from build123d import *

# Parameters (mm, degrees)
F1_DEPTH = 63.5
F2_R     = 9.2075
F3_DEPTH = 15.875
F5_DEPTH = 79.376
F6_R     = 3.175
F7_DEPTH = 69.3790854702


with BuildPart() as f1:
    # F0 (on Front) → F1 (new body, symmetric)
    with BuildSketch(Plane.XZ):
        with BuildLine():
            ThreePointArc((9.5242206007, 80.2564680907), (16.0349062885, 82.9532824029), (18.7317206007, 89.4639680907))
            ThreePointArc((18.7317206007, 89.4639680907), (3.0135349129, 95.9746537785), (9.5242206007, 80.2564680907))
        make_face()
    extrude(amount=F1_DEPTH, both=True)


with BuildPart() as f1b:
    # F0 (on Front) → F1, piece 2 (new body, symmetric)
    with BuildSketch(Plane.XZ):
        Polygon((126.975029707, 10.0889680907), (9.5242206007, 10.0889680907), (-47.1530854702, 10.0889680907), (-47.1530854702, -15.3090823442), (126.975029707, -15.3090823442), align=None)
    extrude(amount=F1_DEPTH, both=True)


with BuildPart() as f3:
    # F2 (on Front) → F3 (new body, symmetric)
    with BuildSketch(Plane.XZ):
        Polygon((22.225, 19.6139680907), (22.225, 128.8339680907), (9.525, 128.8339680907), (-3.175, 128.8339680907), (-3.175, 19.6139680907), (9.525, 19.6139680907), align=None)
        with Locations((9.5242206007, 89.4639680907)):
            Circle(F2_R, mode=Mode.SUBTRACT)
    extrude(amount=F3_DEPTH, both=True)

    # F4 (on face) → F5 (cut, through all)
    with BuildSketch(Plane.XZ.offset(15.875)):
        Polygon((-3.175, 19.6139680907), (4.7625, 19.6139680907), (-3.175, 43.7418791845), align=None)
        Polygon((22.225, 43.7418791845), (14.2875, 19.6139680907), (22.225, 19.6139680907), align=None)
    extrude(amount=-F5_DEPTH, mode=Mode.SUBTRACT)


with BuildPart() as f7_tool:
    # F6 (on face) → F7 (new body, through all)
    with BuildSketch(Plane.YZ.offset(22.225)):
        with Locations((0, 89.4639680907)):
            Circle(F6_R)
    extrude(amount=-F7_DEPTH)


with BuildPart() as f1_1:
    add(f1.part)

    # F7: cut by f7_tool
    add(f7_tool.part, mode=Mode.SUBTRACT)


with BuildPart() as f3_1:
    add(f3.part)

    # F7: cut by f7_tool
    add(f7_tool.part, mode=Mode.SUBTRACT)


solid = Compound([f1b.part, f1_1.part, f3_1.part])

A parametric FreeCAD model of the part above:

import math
import FreeCAD as App
import Part
import Sketcher
Q = App.Units.Quantity

doc = App.newDocument("Part")
params = doc.addObject("Spreadsheet::Sheet", "Params")
for row, (alias, value) in enumerate([
    ("pad1_length", "5 in"),
    ("pad2_length", "5 in"),
    ("sketch3_width", "1 in"),
    ("sketch3_diameter", "0.725 in"),
    ("sketch3_height", "4.3 in"),
    ("pad3_length", "1.25 in"),
    ("sketch4_length", "1 in"),
    ("sketch4_width", "0.3125 in"),
    ("sketch5_diameter", "0.25 in"),
    ("pad4_length", "69.379085 mm"),
], start=1):
    params.set(f"A{row}", alias)
    params.set(f"B{row}", "=" + value)
    params.setAlias(f"B{row}", alias)

body = doc.addObject("PartDesign::Body", "Body")

sketch1 = body.newObject("Sketcher::SketchObject", "Sketch")
sketch1.AttachmentSupport = (doc.getObject("XZ_Plane"), [""])
sketch1.MapMode = "FlatFace"
sketch1.addGeometry(Part.ArcOfCircle(Part.Circle(App.Vector(10, 89, 0), App.Vector(0, 0, 1), 9), math.radians(-90), math.radians(0)), False)
sketch1.addGeometry(Part.ArcOfCircle(Part.Circle(App.Vector(10, 89, 0), App.Vector(0, 0, 1), 9), math.radians(0), math.radians(270)), False)
sketch1.addConstraint(Sketcher.Constraint("Tangent", 0, 1, 1, 2))
sketch1.addConstraint(Sketcher.Constraint("Coincident", 1, 1, 0, 2))
sketch1.addConstraint(Sketcher.Constraint("Horizontal", 0, 3, 1, 1))
sketch1.addConstraint(Sketcher.Constraint("Vertical", 1, 3, 0, 1))
sketch1.addConstraint(Sketcher.Constraint("Radius", 0, Q("0.3625 in")))
sketch1.addConstraint(Sketcher.Constraint("DistanceX", -1, 1, 0, 3, Q("9.524221 mm")))
sketch1.addConstraint(Sketcher.Constraint("DistanceY", -1, 1, 0, 3, Q("89.463968 mm")))
pad1 = body.newObject("PartDesign::Pad", "Pad")
pad1.Profile = sketch1
pad1.setExpression("Length", "Params.pad1_length")
pad1.Midplane = True
body2 = doc.addObject("PartDesign::Body", "Body001")

sketch2 = body2.newObject("Sketcher::SketchObject", "Sketch001")
sketch2.AttachmentSupport = (doc.getObject("XZ_Plane001"), [""])
sketch2.MapMode = "FlatFace"
sketch2.addGeometry(Part.LineSegment(App.Vector(127, 10, 0), App.Vector(-47, 10, 0)), False)
sketch2.addGeometry(Part.LineSegment(App.Vector(-47, 10, 0), App.Vector(-47, -15, 0)), False)
sketch2.addGeometry(Part.LineSegment(App.Vector(-47, -15, 0), App.Vector(127, -15, 0)), False)
sketch2.addGeometry(Part.LineSegment(App.Vector(127, -15, 0), App.Vector(127, 10, 0)), False)
sketch2.addConstraint(Sketcher.Constraint("Coincident", 0, 2, 1, 1))
sketch2.addConstraint(Sketcher.Constraint("Coincident", 1, 2, 2, 1))
sketch2.addConstraint(Sketcher.Constraint("Coincident", 2, 2, 3, 1))
sketch2.addConstraint(Sketcher.Constraint("Coincident", 3, 2, 0, 1))
sketch2.addConstraint(Sketcher.Constraint("Horizontal", 0))
sketch2.addConstraint(Sketcher.Constraint("Vertical", 1))
sketch2.addConstraint(Sketcher.Constraint("Horizontal", 2))
sketch2.addConstraint(Sketcher.Constraint("Vertical", 3))
sketch2.addConstraint(Sketcher.Constraint("DistanceY", 1, 2, 1, 1, Q("25.39805 mm")))
sketch2.addConstraint(Sketcher.Constraint("DistanceX", 0, 2, 0, 1, Q("174.128115 mm")))
sketch2.addConstraint(Sketcher.Constraint("DistanceY", -1, 1, 0, 2, Q("10.088968 mm")))
sketch2.addConstraint(Sketcher.Constraint("DistanceX", -1, 1, 2, 2, Q("126.97503 mm")))
pad2 = body2.newObject("PartDesign::Pad", "Pad001")
pad2.Profile = sketch2
pad2.setExpression("Length", "Params.pad2_length")
pad2.Midplane = True
body3 = doc.addObject("PartDesign::Body", "Body002")

sketch3 = body3.newObject("Sketcher::SketchObject", "Sketch002")
sketch3.AttachmentSupport = (doc.getObject("XZ_Plane002"), [""])
sketch3.MapMode = "FlatFace"
sketch3.addGeometry(Part.LineSegment(App.Vector(22, 20, 0), App.Vector(22, 129, 0)), False)
sketch3.addGeometry(Part.LineSegment(App.Vector(22, 129, 0), App.Vector(-3, 129, 0)), False)
sketch3.addGeometry(Part.LineSegment(App.Vector(-3, 129, 0), App.Vector(-3, 20, 0)), False)
sketch3.addGeometry(Part.LineSegment(App.Vector(-3, 20, 0), App.Vector(22, 20, 0)), False)
sketch3.addGeometry(Part.Circle(App.Vector(10, 89, 0), App.Vector(0, 0, 1), 9), False)
sketch3.addConstraint(Sketcher.Constraint("Coincident", 0, 2, 1, 1))
sketch3.addConstraint(Sketcher.Constraint("Coincident", 1, 2, 2, 1))
sketch3.addConstraint(Sketcher.Constraint("Coincident", 2, 2, 3, 1))
sketch3.addConstraint(Sketcher.Constraint("Coincident", 3, 2, 0, 1))
sketch3.addConstraint(Sketcher.Constraint("Vertical", 0))
sketch3.addConstraint(Sketcher.Constraint("Horizontal", 1))
sketch3.addConstraint(Sketcher.Constraint("Vertical", 2))
sketch3.addConstraint(Sketcher.Constraint("Horizontal", 3))
sketch3.addConstraint(Sketcher.Constraint("DistanceX", 1, 2, 1, 1, Q("1 in")))
sketch3.addConstraint(Sketcher.Constraint("Diameter", 4, Q("0.725 in")))
sketch3.addConstraint(Sketcher.Constraint("DistanceY", 0, 1, 0, 2, Q("4.3 in")))
sketch3.addConstraint(Sketcher.Constraint("DistanceY", 4, 3, 0, 2, Q("1.55 in")))
sketch3.addConstraint(Sketcher.Constraint("DistanceX", -1, 1, 0, 2, Q("0.875 in")))
sketch3.addConstraint(Sketcher.Constraint("DistanceX", -1, 1, 4, 3, Q("9.524221 mm")))
sketch3.addConstraint(Sketcher.Constraint("DistanceY", -1, 1, 4, 3, Q("89.463968 mm")))
sketch3.setExpression("Constraints[8]", "Params.sketch3_width")
sketch3.setExpression("Constraints[9]", "Params.sketch3_diameter")
sketch3.setExpression("Constraints[10]", "Params.sketch3_height")
pad3 = body3.newObject("PartDesign::Pad", "Pad002")
pad3.Profile = sketch3
pad3.setExpression("Length", "Params.pad3_length")
pad3.Midplane = True

sketch4 = body3.newObject("Sketcher::SketchObject", "Sketch003")
sketch4.AttachmentSupport = (doc.getObject("XZ_Plane002"), [""])
sketch4.MapMode = "FlatFace"
sketch4.AttachmentOffset = App.Placement(App.Vector(0, 0, 0.625 * 25.4), App.Rotation())
sketch4.addGeometry(Part.LineSegment(App.Vector(-3, 20, 0), App.Vector(5, 20, 0)), False)
sketch4.addGeometry(Part.LineSegment(App.Vector(5, 20, 0), App.Vector(-3, 44, 0)), False)
sketch4.addGeometry(Part.LineSegment(App.Vector(-3, 44, 0), App.Vector(-3, 20, 0)), False)
sketch4.addGeometry(Part.LineSegment(App.Vector(22, 44, 0), App.Vector(14, 20, 0)), False)
sketch4.addGeometry(Part.LineSegment(App.Vector(14, 20, 0), App.Vector(22, 20, 0)), False)
sketch4.addGeometry(Part.LineSegment(App.Vector(22, 20, 0), App.Vector(22, 44, 0)), False)
sketch4.addConstraint(Sketcher.Constraint("Coincident", 0, 2, 1, 1))
sketch4.addConstraint(Sketcher.Constraint("Coincident", 1, 2, 2, 1))
sketch4.addConstraint(Sketcher.Constraint("Coincident", 2, 2, 0, 1))
sketch4.addConstraint(Sketcher.Constraint("Coincident", 3, 2, 4, 1))
sketch4.addConstraint(Sketcher.Constraint("Coincident", 4, 2, 5, 1))
sketch4.addConstraint(Sketcher.Constraint("Coincident", 5, 2, 3, 1))
sketch4.addConstraint(Sketcher.Constraint("Horizontal", 0))
sketch4.addConstraint(Sketcher.Constraint("Vertical", 2))
sketch4.addConstraint(Sketcher.Constraint("Horizontal", 4))
sketch4.addConstraint(Sketcher.Constraint("Vertical", 5))
sketch4.addConstraint(Sketcher.Constraint("Horizontal", 2, 2, 3, 2))
sketch4.addConstraint(Sketcher.Constraint("Horizontal", 1, 2, 5, 2))
sketch4.addConstraint(Sketcher.Constraint("Equal", 0, 4))
sketch4.addConstraint(Sketcher.Constraint("Distance", 1, Q("1 in")))
sketch4.addConstraint(Sketcher.Constraint("DistanceX", 2, 2, 4, 2, Q("1 in")))
sketch4.addConstraint(Sketcher.Constraint("DistanceX", 0, 1, 0, 2, Q("0.3125 in")))
sketch4.addConstraint(Sketcher.Constraint("DistanceX", -1, 1, 0, 2, Q("0.1875 in")))
sketch4.addConstraint(Sketcher.Constraint("DistanceY", -1, 1, 0, 2, Q("19.613968 mm")))
sketch4.setExpression("Constraints[13]", "Params.sketch4_length")
sketch4.setExpression("Constraints[15]", "Params.sketch4_width")
pocket1 = body3.newObject("PartDesign::Pocket", "Pocket")
pocket1.Profile = sketch4
pocket1.Type = "ThroughAll"
body4 = doc.addObject("PartDesign::Body", "Body003")

sketch5 = body4.newObject("Sketcher::SketchObject", "Sketch004")
sketch5.AttachmentSupport = (doc.getObject("YZ_Plane003"), [""])
sketch5.MapMode = "FlatFace"
sketch5.AttachmentOffset = App.Placement(App.Vector(0, 0, 0.875 * 25.4), App.Rotation())
sketch5.addGeometry(Part.Circle(App.Vector(0, 89.5, 0), App.Vector(0, 0, 1), 3.2), False)
sketch5.addConstraint(Sketcher.Constraint("PointOnObject", 0, 3, -2))
sketch5.addConstraint(Sketcher.Constraint("Diameter", 0, Q("0.25 in")))
sketch5.addConstraint(Sketcher.Constraint("DistanceY", -1, 1, 0, 3, Q("89.463968 mm")))
sketch5.setExpression("Constraints[1]", "Params.sketch5_diameter")
pad4 = body4.newObject("PartDesign::Pad", "Pad003")
pad4.Profile = sketch5
pad4.setExpression("Length", "Params.pad4_length")
pad4.Reversed = True
doc.recompute()

body5 = doc.addObject("PartDesign::Body", "Body004")
body5.BaseFeature = body4
boolean = body.newObject("PartDesign::Boolean", "Boolean")
boolean.Type = "Cut"
boolean.addObjects([body5])
doc.recompute()

boolean2 = body3.newObject("PartDesign::Boolean", "Boolean001")
boolean2.Type = "Cut"
boolean2.addObjects([body4])

doc.recompute()
